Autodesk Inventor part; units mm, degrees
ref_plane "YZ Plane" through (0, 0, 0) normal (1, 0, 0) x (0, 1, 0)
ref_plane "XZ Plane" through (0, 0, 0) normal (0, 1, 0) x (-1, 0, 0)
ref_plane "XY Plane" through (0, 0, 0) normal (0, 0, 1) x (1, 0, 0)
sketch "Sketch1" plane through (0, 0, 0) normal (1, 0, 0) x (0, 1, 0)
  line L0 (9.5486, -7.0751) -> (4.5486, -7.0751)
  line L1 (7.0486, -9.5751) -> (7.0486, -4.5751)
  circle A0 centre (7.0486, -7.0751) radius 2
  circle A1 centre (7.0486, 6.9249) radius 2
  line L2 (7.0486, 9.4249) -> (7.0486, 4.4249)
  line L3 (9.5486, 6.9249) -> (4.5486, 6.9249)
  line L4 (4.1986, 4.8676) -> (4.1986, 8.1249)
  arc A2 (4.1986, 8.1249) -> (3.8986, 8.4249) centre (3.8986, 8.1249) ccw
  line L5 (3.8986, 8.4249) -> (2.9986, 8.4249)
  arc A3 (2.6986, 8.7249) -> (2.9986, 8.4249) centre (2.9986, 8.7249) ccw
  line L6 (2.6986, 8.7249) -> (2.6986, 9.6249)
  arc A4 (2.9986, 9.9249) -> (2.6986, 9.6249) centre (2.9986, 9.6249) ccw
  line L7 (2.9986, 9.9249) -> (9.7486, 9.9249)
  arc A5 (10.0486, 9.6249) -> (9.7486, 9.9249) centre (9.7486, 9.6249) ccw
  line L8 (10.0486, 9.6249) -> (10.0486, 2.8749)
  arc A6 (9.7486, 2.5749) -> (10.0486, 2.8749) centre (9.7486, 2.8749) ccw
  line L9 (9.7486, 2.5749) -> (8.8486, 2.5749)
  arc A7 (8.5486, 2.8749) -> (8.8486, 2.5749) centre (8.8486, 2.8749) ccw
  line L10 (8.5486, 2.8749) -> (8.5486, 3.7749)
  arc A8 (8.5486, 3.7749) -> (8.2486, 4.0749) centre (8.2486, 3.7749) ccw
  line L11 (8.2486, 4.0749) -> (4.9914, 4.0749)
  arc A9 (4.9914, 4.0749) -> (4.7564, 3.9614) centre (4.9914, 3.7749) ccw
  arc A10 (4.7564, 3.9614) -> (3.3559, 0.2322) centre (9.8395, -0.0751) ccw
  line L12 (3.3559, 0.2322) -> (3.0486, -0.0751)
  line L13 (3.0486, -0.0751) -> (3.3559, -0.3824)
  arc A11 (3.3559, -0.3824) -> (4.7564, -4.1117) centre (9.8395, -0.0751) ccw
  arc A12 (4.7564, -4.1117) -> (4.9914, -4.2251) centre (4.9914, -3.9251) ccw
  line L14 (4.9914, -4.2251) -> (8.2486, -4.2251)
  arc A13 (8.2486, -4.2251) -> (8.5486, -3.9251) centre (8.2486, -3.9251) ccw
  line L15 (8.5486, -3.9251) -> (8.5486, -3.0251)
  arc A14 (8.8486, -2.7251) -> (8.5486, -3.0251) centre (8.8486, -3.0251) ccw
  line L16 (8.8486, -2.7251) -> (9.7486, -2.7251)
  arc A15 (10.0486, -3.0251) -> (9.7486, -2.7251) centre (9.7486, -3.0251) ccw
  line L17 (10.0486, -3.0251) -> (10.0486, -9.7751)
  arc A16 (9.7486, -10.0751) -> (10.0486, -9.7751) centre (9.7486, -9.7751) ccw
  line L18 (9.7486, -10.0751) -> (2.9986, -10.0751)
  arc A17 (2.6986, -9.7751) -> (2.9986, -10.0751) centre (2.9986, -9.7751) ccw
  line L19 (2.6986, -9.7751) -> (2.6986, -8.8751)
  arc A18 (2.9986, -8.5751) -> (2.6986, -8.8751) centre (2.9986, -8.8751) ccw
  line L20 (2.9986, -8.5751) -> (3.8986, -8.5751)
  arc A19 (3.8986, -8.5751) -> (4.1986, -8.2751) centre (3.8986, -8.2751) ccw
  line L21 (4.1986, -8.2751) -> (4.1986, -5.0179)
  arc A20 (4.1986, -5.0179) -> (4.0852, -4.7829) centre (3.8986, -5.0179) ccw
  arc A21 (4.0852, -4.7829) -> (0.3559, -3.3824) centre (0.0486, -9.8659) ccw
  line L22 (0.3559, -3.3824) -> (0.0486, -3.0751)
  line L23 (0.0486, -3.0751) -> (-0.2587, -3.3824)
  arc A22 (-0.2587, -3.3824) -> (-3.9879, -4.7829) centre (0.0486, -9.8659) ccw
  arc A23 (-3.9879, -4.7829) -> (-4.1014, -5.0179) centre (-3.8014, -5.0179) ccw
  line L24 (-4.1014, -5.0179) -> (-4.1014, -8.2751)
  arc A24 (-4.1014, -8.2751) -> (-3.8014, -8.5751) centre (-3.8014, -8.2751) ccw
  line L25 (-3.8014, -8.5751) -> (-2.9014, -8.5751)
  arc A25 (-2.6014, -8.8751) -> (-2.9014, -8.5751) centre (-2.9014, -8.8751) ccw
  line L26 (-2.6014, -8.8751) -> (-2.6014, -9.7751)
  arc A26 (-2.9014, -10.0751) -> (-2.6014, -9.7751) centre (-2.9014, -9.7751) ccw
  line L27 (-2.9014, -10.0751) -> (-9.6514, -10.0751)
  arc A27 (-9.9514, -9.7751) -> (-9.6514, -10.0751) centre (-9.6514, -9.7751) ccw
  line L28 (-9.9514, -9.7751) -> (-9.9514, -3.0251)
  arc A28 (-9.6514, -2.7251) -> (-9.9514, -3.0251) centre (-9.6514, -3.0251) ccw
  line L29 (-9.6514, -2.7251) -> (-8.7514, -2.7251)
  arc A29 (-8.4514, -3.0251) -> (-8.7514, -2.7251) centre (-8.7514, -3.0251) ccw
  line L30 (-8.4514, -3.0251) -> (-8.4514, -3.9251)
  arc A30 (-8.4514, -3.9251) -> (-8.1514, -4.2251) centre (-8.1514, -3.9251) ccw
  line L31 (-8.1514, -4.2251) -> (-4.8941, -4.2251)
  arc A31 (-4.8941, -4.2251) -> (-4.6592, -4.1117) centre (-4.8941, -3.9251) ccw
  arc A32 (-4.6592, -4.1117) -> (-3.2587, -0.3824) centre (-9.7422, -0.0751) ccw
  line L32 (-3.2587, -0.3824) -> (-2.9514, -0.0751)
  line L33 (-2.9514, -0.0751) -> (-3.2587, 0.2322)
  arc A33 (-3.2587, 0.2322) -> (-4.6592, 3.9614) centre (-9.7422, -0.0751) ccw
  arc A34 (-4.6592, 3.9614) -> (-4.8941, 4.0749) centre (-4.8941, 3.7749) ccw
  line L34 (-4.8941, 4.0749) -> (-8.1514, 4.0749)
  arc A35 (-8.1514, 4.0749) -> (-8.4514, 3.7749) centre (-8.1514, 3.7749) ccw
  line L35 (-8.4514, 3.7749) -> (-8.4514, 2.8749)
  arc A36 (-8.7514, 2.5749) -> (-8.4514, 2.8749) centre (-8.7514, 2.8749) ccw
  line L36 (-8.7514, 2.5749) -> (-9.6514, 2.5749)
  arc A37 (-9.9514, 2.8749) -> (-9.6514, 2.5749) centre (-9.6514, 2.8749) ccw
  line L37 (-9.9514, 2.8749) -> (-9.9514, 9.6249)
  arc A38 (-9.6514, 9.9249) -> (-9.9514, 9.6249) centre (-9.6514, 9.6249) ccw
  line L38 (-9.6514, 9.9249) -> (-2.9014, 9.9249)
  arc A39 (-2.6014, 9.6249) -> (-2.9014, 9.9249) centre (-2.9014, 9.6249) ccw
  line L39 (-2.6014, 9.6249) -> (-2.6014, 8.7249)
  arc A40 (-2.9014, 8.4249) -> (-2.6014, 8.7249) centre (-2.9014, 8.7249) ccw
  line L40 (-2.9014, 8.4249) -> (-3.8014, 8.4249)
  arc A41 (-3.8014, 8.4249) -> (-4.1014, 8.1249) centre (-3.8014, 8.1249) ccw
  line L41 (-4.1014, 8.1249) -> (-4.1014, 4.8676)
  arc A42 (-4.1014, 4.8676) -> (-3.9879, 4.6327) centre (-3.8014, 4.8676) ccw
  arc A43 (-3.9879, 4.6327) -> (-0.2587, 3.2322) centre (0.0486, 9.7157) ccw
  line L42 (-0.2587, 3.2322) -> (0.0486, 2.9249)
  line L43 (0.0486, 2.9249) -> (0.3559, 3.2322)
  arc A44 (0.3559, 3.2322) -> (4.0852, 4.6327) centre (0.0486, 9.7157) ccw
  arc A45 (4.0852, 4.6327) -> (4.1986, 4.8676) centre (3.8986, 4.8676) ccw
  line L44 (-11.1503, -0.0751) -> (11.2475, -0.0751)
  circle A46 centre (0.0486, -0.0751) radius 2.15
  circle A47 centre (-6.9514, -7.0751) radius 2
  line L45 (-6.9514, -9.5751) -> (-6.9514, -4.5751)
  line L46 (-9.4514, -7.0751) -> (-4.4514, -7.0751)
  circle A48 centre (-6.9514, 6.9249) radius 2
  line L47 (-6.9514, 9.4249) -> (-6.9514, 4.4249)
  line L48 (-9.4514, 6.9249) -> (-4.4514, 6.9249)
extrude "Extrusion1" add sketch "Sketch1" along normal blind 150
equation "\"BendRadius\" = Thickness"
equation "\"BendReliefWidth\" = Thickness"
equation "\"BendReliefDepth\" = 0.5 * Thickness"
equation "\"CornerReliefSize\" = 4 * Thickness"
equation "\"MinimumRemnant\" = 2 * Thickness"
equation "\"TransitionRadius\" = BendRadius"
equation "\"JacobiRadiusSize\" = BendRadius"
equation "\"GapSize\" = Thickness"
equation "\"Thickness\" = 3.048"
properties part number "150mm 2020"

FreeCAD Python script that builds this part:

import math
import FreeCAD as App
import Part
import Sketcher
Q = App.Units.Quantity

doc = App.newDocument("Part")
body = doc.addObject("PartDesign::Body", "Body")

sketch1 = body.newObject("Sketcher::SketchObject", "Sketch")
sketch1.AttachmentSupport = (doc.getObject("YZ_Plane"), [""])
sketch1.MapMode = "FlatFace"
sketch1.addGeometry(Part.LineSegment(App.Vector(4.2, 8.12, 0), App.Vector(4.2, 4.87, 0)), False)
sketch1.addGeometry(Part.ArcOfCircle(Part.Circle(App.Vector(3.9, 4.87, 0), App.Vector(0, 0, 1), 0.3), math.radians(-52), math.radians(0)), False)
sketch1.addGeometry(Part.ArcOfCircle(Part.Circle(App.Vector(0.05, 9.72, 0), App.Vector(0, 0, 1), 6.49), math.radians(-87), math.radians(-52)), False)
sketch1.addGeometry(Part.LineSegment(App.Vector(0.36, 3.23, 0), App.Vector(0.05, 2.92, 0)), False)
sketch1.addGeometry(Part.LineSegment(App.Vector(0.05, 2.92, 0), App.Vector(-0.26, 3.23, 0)), False)
sketch1.addGeometry(Part.ArcOfCircle(Part.Circle(App.Vector(0.05, 9.72, 0), App.Vector(0, 0, 1), 6.49), math.radians(-128), math.radians(-93)), False)
sketch1.addGeometry(Part.ArcOfCircle(Part.Circle(App.Vector(-3.8, 4.87, 0), App.Vector(0, 0, 1), 0.3), math.radians(180), math.radians(232)), False)
sketch1.addGeometry(Part.LineSegment(App.Vector(-4.1, 4.87, 0), App.Vector(-4.1, 8.12, 0)), False)
sketch1.addGeometry(Part.ArcOfCircle(Part.Circle(App.Vector(-3.8, 8.12, 0), App.Vector(0, 0, 1), 0.3), math.radians(90), math.radians(180)), False)
sketch1.addGeometry(Part.LineSegment(App.Vector(-3.8, 8.42, 0), App.Vector(-2.9, 8.42, 0)), False)
sketch1.addGeometry(Part.ArcOfCircle(Part.Circle(App.Vector(-2.9, 8.72, 0), App.Vector(0, 0, 1), 0.3), math.radians(-90), math.radians(0)), False)
sketch1.addGeometry(Part.LineSegment(App.Vector(-2.6, 8.72, 0), App.Vector(-2.6, 9.62, 0)), False)
sketch1.addGeometry(Part.ArcOfCircle(Part.Circle(App.Vector(-2.9, 9.62, 0), App.Vector(0, 0, 1), 0.3), math.radians(0), math.radians(90)), False)
sketch1.addGeometry(Part.LineSegment(App.Vector(-2.9, 9.92, 0), App.Vector(-9.65, 9.92, 0)), False)
sketch1.addGeometry(Part.ArcOfCircle(Part.Circle(App.Vector(-9.65, 9.62, 0), App.Vector(0, 0, 1), 0.3), math.radians(90), math.radians(180)), False)
sketch1.addGeometry(Part.LineSegment(App.Vector(-9.95, 9.62, 0), App.Vector(-9.95, 2.87, 0)), False)
sketch1.addGeometry(Part.ArcOfCircle(Part.Circle(App.Vector(-9.65, 2.87, 0), App.Vector(0, 0, 1), 0.3), math.radians(180), math.radians(270)), False)
sketch1.addGeometry(Part.LineSegment(App.Vector(-9.65, 2.57, 0), App.Vector(-8.75, 2.57, 0)), False)
sketch1.addGeometry(Part.ArcOfCircle(Part.Circle(App.Vector(-8.75, 2.87, 0), App.Vector(0, 0, 1), 0.3), math.radians(-90), math.radians(0)), False)
sketch1.addGeometry(Part.LineSegment(App.Vector(-8.45, 2.87, 0), App.Vector(-8.45, 3.77, 0)), False)
sketch1.addGeometry(Part.ArcOfCircle(Part.Circle(App.Vector(-8.15, 3.77, 0), App.Vector(0, 0, 1), 0.3), math.radians(90), math.radians(180)), False)
sketch1.addGeometry(Part.LineSegment(App.Vector(-8.15, 4.07, 0), App.Vector(-4.89, 4.07, 0)), False)
sketch1.addGeometry(Part.ArcOfCircle(Part.Circle(App.Vector(-4.89, 3.77, 0), App.Vector(0, 0, 1), 0.3), math.radians(38), math.radians(90)), False)
sketch1.addGeometry(Part.ArcOfCircle(Part.Circle(App.Vector(-9.74, -0.08, 0), App.Vector(0, 0, 1), 6.49), math.radians(3), math.radians(38)), False)
sketch1.addGeometry(Part.LineSegment(App.Vector(-3.26, 0.23, 0), App.Vector(-2.95, -0.08, 0)), False)
sketch1.addGeometry(Part.LineSegment(App.Vector(-2.95, -0.08, 0), App.Vector(-3.26, -0.38, 0)), False)
sketch1.addGeometry(Part.ArcOfCircle(Part.Circle(App.Vector(-9.74, -0.08, 0), App.Vector(0, 0, 1), 6.49), math.radians(-38), math.radians(-3)), False)
sketch1.addGeometry(Part.ArcOfCircle(Part.Circle(App.Vector(-4.89, -3.93, 0), App.Vector(0, 0, 1), 0.3), math.radians(-90), math.radians(-38)), False)
sketch1.addGeometry(Part.LineSegment(App.Vector(-4.89, -4.23, 0), App.Vector(-8.15, -4.23, 0)), False)
sketch1.addGeometry(Part.ArcOfCircle(Part.Circle(App.Vector(-8.15, -3.93, 0), App.Vector(0, 0, 1), 0.3), math.radians(180), math.radians(270)), False)
sketch1.addGeometry(Part.LineSegment(App.Vector(-8.45, -3.93, 0), App.Vector(-8.45, -3.03, 0)), False)
sketch1.addGeometry(Part.ArcOfCircle(Part.Circle(App.Vector(-8.75, -3.03, 0), App.Vector(0, 0, 1), 0.3), math.radians(0), math.radians(90)), False)
sketch1.addGeometry(Part.LineSegment(App.Vector(-8.75, -2.73, 0), App.Vector(-9.65, -2.73, 0)), False)
sketch1.addGeometry(Part.ArcOfCircle(Part.Circle(App.Vector(-9.65, -3.03, 0), App.Vector(0, 0, 1), 0.3), math.radians(90), math.radians(180)), False)
sketch1.addGeometry(Part.LineSegment(App.Vector(-9.95, -3.03, 0), App.Vector(-9.95, -9.78, 0)), False)
sketch1.addGeometry(Part.ArcOfCircle(Part.Circle(App.Vector(-9.65, -9.78, 0), App.Vector(0, 0, 1), 0.3), math.radians(180), math.radians(270)), False)
sketch1.addGeometry(Part.LineSegment(App.Vector(-9.65, -10.08, 0), App.Vector(-2.9, -10.08, 0)), False)
sketch1.addGeometry(Part.ArcOfCircle(Part.Circle(App.Vector(-2.9, -9.78, 0), App.Vector(0, 0, 1), 0.3), math.radians(-90), math.radians(0)), False)
sketch1.addGeometry(Part.LineSegment(App.Vector(-2.6, -9.78, 0), App.Vector(-2.6, -8.88, 0)), False)
sketch1.addGeometry(Part.ArcOfCircle(Part.Circle(App.Vector(-2.9, -8.88, 0), App.Vector(0, 0, 1), 0.3), math.radians(0), math.radians(90)), False)
sketch1.addGeometry(Part.LineSegment(App.Vector(-2.9, -8.58, 0), App.Vector(-3.8, -8.58, 0)), False)
sketch1.addGeometry(Part.ArcOfCircle(Part.Circle(App.Vector(-3.8, -8.28, 0), App.Vector(0, 0, 1), 0.3), math.radians(180), math.radians(270)), False)
sketch1.addGeometry(Part.LineSegment(App.Vector(-4.1, -8.28, 0), App.Vector(-4.1, -5.02, 0)), False)
sketch1.addGeometry(Part.ArcOfCircle(Part.Circle(App.Vector(-3.8, -5.02, 0), App.Vector(0, 0, 1), 0.3), math.radians(128), math.radians(180)), False)
sketch1.addGeometry(Part.ArcOfCircle(Part.Circle(App.Vector(0.05, -9.87, 0), App.Vector(0, 0, 1), 6.49), math.radians(93), math.radians(128)), False)
sketch1.addGeometry(Part.LineSegment(App.Vector(-0.26, -3.38, 0), App.Vector(0.05, -3.08, 0)), False)
sketch1.addGeometry(Part.LineSegment(App.Vector(0.05, -3.08, 0), App.Vector(0.36, -3.38, 0)), False)
sketch1.addGeometry(Part.ArcOfCircle(Part.Circle(App.Vector(0.05, -9.87, 0), App.Vector(0, 0, 1), 6.49), math.radians(52), math.radians(87)), False)
sketch1.addGeometry(Part.ArcOfCircle(Part.Circle(App.Vector(3.9, -5.02, 0), App.Vector(0, 0, 1), 0.3), math.radians(0), math.radians(52)), False)
sketch1.addGeometry(Part.LineSegment(App.Vector(4.2, -5.02, 0), App.Vector(4.2, -8.28, 0)), False)
sketch1.addGeometry(Part.ArcOfCircle(Part.Circle(App.Vector(3.9, -8.28, 0), App.Vector(0, 0, 1), 0.3), math.radians(-90), math.radians(0)), False)
sketch1.addGeometry(Part.LineSegment(App.Vector(3.9, -8.58, 0), App.Vector(3, -8.58, 0)), False)
sketch1.addGeometry(Part.ArcOfCircle(Part.Circle(App.Vector(3, -8.88, 0), App.Vector(0, 0, 1), 0.3), math.radians(90), math.radians(180)), False)
sketch1.addGeometry(Part.LineSegment(App.Vector(2.7, -8.88, 0), App.Vector(2.7, -9.78, 0)), False)
sketch1.addGeometry(Part.ArcOfCircle(Part.Circle(App.Vector(3, -9.78, 0), App.Vector(0, 0, 1), 0.3), math.radians(180), math.radians(270)), False)
sketch1.addGeometry(Part.LineSegment(App.Vector(3, -10.08, 0), App.Vector(9.75, -10.08, 0)), False)
sketch1.addGeometry(Part.ArcOfCircle(Part.Circle(App.Vector(9.75, -9.78, 0), App.Vector(0, 0, 1), 0.3), math.radians(-90), math.radians(0)), False)
sketch1.addGeometry(Part.LineSegment(App.Vector(10.05, -9.78, 0), App.Vector(10.05, -3.03, 0)), False)
sketch1.addGeometry(Part.ArcOfCircle(Part.Circle(App.Vector(9.75, -3.03, 0), App.Vector(0, 0, 1), 0.3), math.radians(0), math.radians(90)), False)
sketch1.addGeometry(Part.LineSegment(App.Vector(9.75, -2.73, 0), App.Vector(8.85, -2.73, 0)), False)
sketch1.addGeometry(Part.ArcOfCircle(Part.Circle(App.Vector(8.85, -3.03, 0), App.Vector(0, 0, 1), 0.3), math.radians(90), math.radians(180)), False)
sketch1.addGeometry(Part.LineSegment(App.Vector(8.55, -3.03, 0), App.Vector(8.55, -3.93, 0)), False)
sketch1.addGeometry(Part.ArcOfCircle(Part.Circle(App.Vector(8.25, -3.93, 0), App.Vector(0, 0, 1), 0.3), math.radians(-90), math.radians(0)), False)
sketch1.addGeometry(Part.LineSegment(App.Vector(8.25, -4.23, 0), App.Vector(4.99, -4.23, 0)), False)
sketch1.addGeometry(Part.ArcOfCircle(Part.Circle(App.Vector(4.99, -3.93, 0), App.Vector(0, 0, 1), 0.3), math.radians(-142), math.radians(-90)), False)
sketch1.addGeometry(Part.ArcOfCircle(Part.Circle(App.Vector(9.84, -0.08, 0), App.Vector(0, 0, 1), 6.49), math.radians(-177), math.radians(-142)), False)
sketch1.addGeometry(Part.LineSegment(App.Vector(3.36, -0.38, 0), App.Vector(3.05, -0.08, 0)), False)
sketch1.addGeometry(Part.LineSegment(App.Vector(3.05, -0.08, 0), App.Vector(3.36, 0.23, 0)), False)
sketch1.addGeometry(Part.ArcOfCircle(Part.Circle(App.Vector(9.84, -0.08, 0), App.Vector(0, 0, 1), 6.49), math.radians(142), math.radians(177)), False)
sketch1.addGeometry(Part.ArcOfCircle(Part.Circle(App.Vector(4.99, 3.77, 0), App.Vector(0, 0, 1), 0.3), math.radians(90), math.radians(142)), False)
sketch1.addGeometry(Part.LineSegment(App.Vector(4.99, 4.07, 0), App.Vector(8.25, 4.07, 0)), False)
sketch1.addGeometry(Part.ArcOfCircle(Part.Circle(App.Vector(8.25, 3.77, 0), App.Vector(0, 0, 1), 0.3), math.radians(0), math.radians(90)), False)
sketch1.addGeometry(Part.LineSegment(App.Vector(8.55, 3.77, 0), App.Vector(8.55, 2.87, 0)), False)
sketch1.addGeometry(Part.ArcOfCircle(Part.Circle(App.Vector(8.85, 2.87, 0), App.Vector(0, 0, 1), 0.3), math.radians(180), math.radians(270)), False)
sketch1.addGeometry(Part.LineSegment(App.Vector(8.85, 2.57, 0), App.Vector(9.75, 2.57, 0)), False)
sketch1.addGeometry(Part.ArcOfCircle(Part.Circle(App.Vector(9.75, 2.87, 0), App.Vector(0, 0, 1), 0.3), math.radians(-90), math.radians(0)), False)
sketch1.addGeometry(Part.LineSegment(App.Vector(10.05, 2.87, 0), App.Vector(10.05, 9.62, 0)), False)
sketch1.addGeometry(Part.ArcOfCircle(Part.Circle(App.Vector(9.75, 9.62, 0), App.Vector(0, 0, 1), 0.3), math.radians(0), math.radians(90)), False)
sketch1.addGeometry(Part.LineSegment(App.Vector(9.75, 9.92, 0), App.Vector(3, 9.92, 0)), False)
sketch1.addGeometry(Part.ArcOfCircle(Part.Circle(App.Vector(3, 9.62, 0), App.Vector(0, 0, 1), 0.3), math.radians(90), math.radians(180)), False)
sketch1.addGeometry(Part.LineSegment(App.Vector(2.7, 9.62, 0), App.Vector(2.7, 8.72, 0)), False)
sketch1.addGeometry(Part.ArcOfCircle(Part.Circle(App.Vector(3, 8.72, 0), App.Vector(0, 0, 1), 0.3), math.radians(180), math.radians(270)), False)
sketch1.addGeometry(Part.LineSegment(App.Vector(3, 8.42, 0), App.Vector(3.9, 8.42, 0)), False)
sketch1.addGeometry(Part.ArcOfCircle(Part.Circle(App.Vector(3.9, 8.12, 0), App.Vector(0, 0, 1), 0.3), math.radians(0), math.radians(90)), False)
sketch1.addGeometry(Part.Circle(App.Vector(-6.95, 6.92, 0), App.Vector(0, 0, 1), 2), False)
sketch1.addGeometry(Part.Circle(App.Vector(7.05, 6.92, 0), App.Vector(0, 0, 1), 2), False)
sketch1.addGeometry(Part.Circle(App.Vector(7.05, -7.08, 0), App.Vector(0, 0, 1), 2), False)
sketch1.addGeometry(Part.Circle(App.Vector(-6.95, -7.08, 0), App.Vector(0, 0, 1), 2), False)
sketch1.addConstraint(Sketcher.Constraint("Tangent", 0, 2, 1, 2))
sketch1.addConstraint(Sketcher.Constraint("Tangent", 1, 1, 2, 2))
sketch1.addConstraint(Sketcher.Constraint("Coincident", 2, 1, 3, 1))
sketch1.addConstraint(Sketcher.Constraint("Coincident", 3, 2, 4, 1))
sketch1.addConstraint(Sketcher.Constraint("Coincident", 4, 2, 5, 2))
sketch1.addConstraint(Sketcher.Constraint("Tangent", 5, 1, 6, 2))
sketch1.addConstraint(Sketcher.Constraint("Tangent", 6, 1, 7, 1))
sketch1.addConstraint(Sketcher.Constraint("Tangent", 7, 2, 8, 2))
sketch1.addConstraint(Sketcher.Constraint("Tangent", 8, 1, 9, 1))
sketch1.addConstraint(Sketcher.Constraint("Tangent", 9, 2, 10, 1))
sketch1.addConstraint(Sketcher.Constraint("Tangent", 10, 2, 11, 1))
sketch1.addConstraint(Sketcher.Constraint("Tangent", 11, 2, 12, 1))
sketch1.addConstraint(Sketcher.Constraint("Tangent", 12, 2, 13, 1))
sketch1.addConstraint(Sketcher.Constraint("Tangent", 13, 2, 14, 1))
sketch1.addConstraint(Sketcher.Constraint("Tangent", 14, 2, 15, 1))
sketch1.addConstraint(Sketcher.Constraint("Tangent", 15, 2, 16, 1))
sketch1.addConstraint(Sketcher.Constraint("Tangent", 16, 2, 17, 1))
sketch1.addConstraint(Sketcher.Constraint("Tangent", 17, 2, 18, 1))
sketch1.addConstraint(Sketcher.Constraint("Tangent", 18, 2, 19, 1))
sketch1.addConstraint(Sketcher.Constraint("Tangent", 19, 2, 20, 2))
sketch1.addConstraint(Sketcher.Constraint("Tangent", 20, 1, 21, 1))
sketch1.addConstraint(Sketcher.Constraint("Tangent", 21, 2, 22, 2))
sketch1.addConstraint(Sketcher.Constraint("Tangent", 22, 1, 23, 2))
sketch1.addConstraint(Sketcher.Constraint("Coincident", 23, 1, 24, 1))
sketch1.addConstraint(Sketcher.Constraint("Coincident", 24, 2, 25, 1))
sketch1.addConstraint(Sketcher.Constraint("Coincident", 25, 2, 26, 2))
sketch1.addConstraint(Sketcher.Constraint("Tangent", 26, 1, 27, 2))
sketch1.addConstraint(Sketcher.Constraint("Tangent", 27, 1, 28, 1))
sketch1.addConstraint(Sketcher.Constraint("Tangent", 28, 2, 29, 2))
sketch1.addConstraint(Sketcher.Constraint("Tangent", 29, 1, 30, 1))
sketch1.addConstraint(Sketcher.Constraint("Tangent", 30, 2, 31, 1))
sketch1.addConstraint(Sketcher.Constraint("Tangent", 31, 2, 32, 1))
sketch1.addConstraint(Sketcher.Constraint("Tangent", 32, 2, 33, 1))
sketch1.addConstraint(Sketcher.Constraint("Tangent", 33, 2, 34, 1))
sketch1.addConstraint(Sketcher.Constraint("Tangent", 34, 2, 35, 1))
sketch1.addConstraint(Sketcher.Constraint("Tangent", 35, 2, 36, 1))
sketch1.addConstraint(Sketcher.Constraint("Tangent", 36, 2, 37, 1))
sketch1.addConstraint(Sketcher.Constraint("Tangent", 37, 2, 38, 1))
sketch1.addConstraint(Sketcher.Constraint("Tangent", 38, 2, 39, 1))
sketch1.addConstraint(Sketcher.Constraint("Tangent", 39, 2, 40, 1))
sketch1.addConstraint(Sketcher.Constraint("Tangent", 40, 2, 41, 2))
sketch1.addConstraint(Sketcher.Constraint("Tangent", 41, 1, 42, 1))
sketch1.addConstraint(Sketcher.Constraint("Tangent", 42, 2, 43, 2))
sketch1.addConstraint(Sketcher.Constraint("Tangent", 43, 1, 44, 2))
sketch1.addConstraint(Sketcher.Constraint("Coincident", 44, 1, 45, 1))
sketch1.addConstraint(Sketcher.Constraint("Coincident", 45, 2, 46, 1))
sketch1.addConstraint(Sketcher.Constraint("Coincident", 46, 2, 47, 2))
sketch1.addConstraint(Sketcher.Constraint("Tangent", 47, 1, 48, 2))
sketch1.addConstraint(Sketcher.Constraint("Tangent", 48, 1, 49, 1))
sketch1.addConstraint(Sketcher.Constraint("Tangent", 49, 2, 50, 2))
sketch1.addConstraint(Sketcher.Constraint("Tangent", 50, 1, 51, 1))
sketch1.addConstraint(Sketcher.Constraint("Tangent", 51, 2, 52, 1))
sketch1.addConstraint(Sketcher.Constraint("Tangent", 52, 2, 53, 1))
sketch1.addConstraint(Sketcher.Constraint("Tangent", 53, 2, 54, 1))
sketch1.addConstraint(Sketcher.Constraint("Tangent", 54, 2, 55, 1))
sketch1.addConstraint(Sketcher.Constraint("Tangent", 55, 2, 56, 1))
sketch1.addConstraint(Sketcher.Constraint("Tangent", 56, 2, 57, 1))
sketch1.addConstraint(Sketcher.Constraint("Tangent", 57, 2, 58, 1))
sketch1.addConstraint(Sketcher.Constraint("Tangent", 58, 2, 59, 1))
sketch1.addConstraint(Sketcher.Constraint("Tangent", 59, 2, 60, 1))
sketch1.addConstraint(Sketcher.Constraint("Tangent", 60, 2, 61, 1))
sketch1.addConstraint(Sketcher.Constraint("Tangent", 61, 2, 62, 2))
sketch1.addConstraint(Sketcher.Constraint("Tangent", 62, 1, 63, 1))
sketch1.addConstraint(Sketcher.Constraint("Tangent", 63, 2, 64, 2))
sketch1.addConstraint(Sketcher.Constraint("Tangent", 64, 1, 65, 2))
sketch1.addConstraint(Sketcher.Constraint("Coincident", 65, 1, 66, 1))
sketch1.addConstraint(Sketcher.Constraint("Coincident", 66, 2, 67, 1))
sketch1.addConstraint(Sketcher.Constraint("Coincident", 67, 2, 68, 2))
sketch1.addConstraint(Sketcher.Constraint("Tangent", 68, 1, 69, 2))
sketch1.addConstraint(Sketcher.Constraint("Tangent", 69, 1, 70, 1))
sketch1.addConstraint(Sketcher.Constraint("Tangent", 70, 2, 71, 2))
sketch1.addConstraint(Sketcher.Constraint("Tangent", 71, 1, 72, 1))
sketch1.addConstraint(Sketcher.Constraint("Tangent", 72, 2, 73, 1))
sketch1.addConstraint(Sketcher.Constraint("Tangent", 73, 2, 74, 1))
sketch1.addConstraint(Sketcher.Constraint("Tangent", 74, 2, 75, 1))
sketch1.addConstraint(Sketcher.Constraint("Tangent", 75, 2, 76, 1))
sketch1.addConstraint(Sketcher.Constraint("Tangent", 76, 2, 77, 1))
sketch1.addConstraint(Sketcher.Constraint("Tangent", 77, 2, 78, 1))
sketch1.addConstraint(Sketcher.Constraint("Tangent", 78, 2, 79, 1))
sketch1.addConstraint(Sketcher.Constraint("Tangent", 79, 2, 80, 1))
sketch1.addConstraint(Sketcher.Constraint("Tangent", 80, 2, 81, 1))
sketch1.addConstraint(Sketcher.Constraint("Tangent", 81, 2, 82, 1))
sketch1.addConstraint(Sketcher.Constraint("Tangent", 82, 2, 83, 2))
sketch1.addConstraint(Sketcher.Constraint("Tangent", 83, 1, 0, 1))
sketch1.addConstraint(Sketcher.Constraint("Vertical", 0))
sketch1.addConstraint(Sketcher.Constraint("Vertical", 7))
sketch1.addConstraint(Sketcher.Constraint("Horizontal", 9))
sketch1.addConstraint(Sketcher.Constraint("Vertical", 11))
sketch1.addConstraint(Sketcher.Constraint("Horizontal", 13))
sketch1.addConstraint(Sketcher.Constraint("Vertical", 15))
sketch1.addConstraint(Sketcher.Constraint("Horizontal", 17))
sketch1.addConstraint(Sketcher.Constraint("Vertical", 19))
sketch1.addConstraint(Sketcher.Constraint("Horizontal", 21))
sketch1.addConstraint(Sketcher.Constraint("Horizontal", 28))
sketch1.addConstraint(Sketcher.Constraint("Vertical", 30))
sketch1.addConstraint(Sketcher.Constraint("Horizontal", 32))
sketch1.addConstraint(Sketcher.Constraint("Vertical", 34))
sketch1.addConstraint(Sketcher.Constraint("Horizontal", 36))
sketch1.addConstraint(Sketcher.Constraint("Vertical", 38))
sketch1.addConstraint(Sketcher.Constraint("Horizontal", 40))
sketch1.addConstraint(Sketcher.Constraint("Vertical", 42))
sketch1.addConstraint(Sketcher.Constraint("Vertical", 49))
sketch1.addConstraint(Sketcher.Constraint("Horizontal", 51))
sketch1.addConstraint(Sketcher.Constraint("Vertical", 53))
sketch1.addConstraint(Sketcher.Constraint("Horizontal", 55))
sketch1.addConstraint(Sketcher.Constraint("Vertical", 57))
sketch1.addConstraint(Sketcher.Constraint("Horizontal", 59))
sketch1.addConstraint(Sketcher.Constraint("Vertical", 61))
sketch1.addConstraint(Sketcher.Constraint("Horizontal", 63))
sketch1.addConstraint(Sketcher.Constraint("Horizontal", 70))
sketch1.addConstraint(Sketcher.Constraint("Vertical", 72))
sketch1.addConstraint(Sketcher.Constraint("Horizontal", 74))
sketch1.addConstraint(Sketcher.Constraint("Vertical", 76))
sketch1.addConstraint(Sketcher.Constraint("Horizontal", 78))
sketch1.addConstraint(Sketcher.Constraint("Vertical", 80))
sketch1.addConstraint(Sketcher.Constraint("Horizontal", 82))
sketch1.addConstraint(Sketcher.Constraint("Coincident", 5, 3, 2, 3))
sketch1.addConstraint(Sketcher.Constraint("Coincident", 26, 3, 23, 3))
sketch1.addConstraint(Sketcher.Constraint("Coincident", 47, 3, 44, 3))
sketch1.addConstraint(Sketcher.Constraint("Coincident", 68, 3, 65, 3))
sketch1.addConstraint(Sketcher.Constraint("Equal", 2, 5))
sketch1.addConstraint(Sketcher.Constraint("Equal", 1, 6))
sketch1.addConstraint(Sketcher.Constraint("Equal", 6, 8))
sketch1.addConstraint(Sketcher.Constraint("Equal", 8, 10))
sketch1.addConstraint(Sketcher.Constraint("Equal", 10, 12))
sketch1.addConstraint(Sketcher.Constraint("Equal", 12, 14))
sketch1.addConstraint(Sketcher.Constraint("Equal", 14, 16))
sketch1.addConstraint(Sketcher.Constraint("Equal", 16, 18))
sketch1.addConstraint(Sketcher.Constraint("Equal", 18, 20))
sketch1.addConstraint(Sketcher.Constraint("Equal", 20, 22))
sketch1.addConstraint(Sketcher.Constraint("Equal", 5, 23))
sketch1.addConstraint(Sketcher.Constraint("Equal", 23, 26))
sketch1.addConstraint(Sketcher.Constraint("Equal", 22, 27))
sketch1.addConstraint(Sketcher.Constraint("Equal", 27, 29))
sketch1.addConstraint(Sketcher.Constraint("Equal", 29, 31))
sketch1.addConstraint(Sketcher.Constraint("Equal", 31, 33))
sketch1.addConstraint(Sketcher.Constraint("Equal", 33, 35))
sketch1.addConstraint(Sketcher.Constraint("Equal", 35, 37))
sketch1.addConstraint(Sketcher.Constraint("Equal", 37, 39))
sketch1.addConstraint(Sketcher.Constraint("Equal", 39, 41))
sketch1.addConstraint(Sketcher.Constraint("Equal", 41, 43))
sketch1.addConstraint(Sketcher.Constraint("Equal", 26, 44))
sketch1.addConstraint(Sketcher.Constraint("Equal", 44, 47))
sketch1.addConstraint(Sketcher.Constraint("Equal", 43, 48))
sketch1.addConstraint(Sketcher.Constraint("Equal", 48, 50))
sketch1.addConstraint(Sketcher.Constraint("Equal", 50, 52))
sketch1.addConstraint(Sketcher.Constraint("Equal", 52, 54))
sketch1.addConstraint(Sketcher.Constraint("Equal", 54, 56))
sketch1.addConstraint(Sketcher.Constraint("Equal", 56, 58))
sketch1.addConstraint(Sketcher.Constraint("Equal", 58, 60))
sketch1.addConstraint(Sketcher.Constraint("Equal", 60, 62))
sketch1.addConstraint(Sketcher.Constraint("Equal", 62, 64))
sketch1.addConstraint(Sketcher.Constraint("Equal", 47, 65))
sketch1.addConstraint(Sketcher.Constraint("Equal", 65, 68))
sketch1.addConstraint(Sketcher.Constraint("Equal", 64, 69))
sketch1.addConstraint(Sketcher.Constraint("Equal", 69, 71))
sketch1.addConstraint(Sketcher.Constraint("Equal", 71, 73))
sketch1.addConstraint(Sketcher.Constraint("Equal", 73, 75))
sketch1.addConstraint(Sketcher.Constraint("Equal", 75, 77))
sketch1.addConstraint(Sketcher.Constraint("Equal", 77, 79))
sketch1.addConstraint(Sketcher.Constraint("Equal", 79, 81))
sketch1.addConstraint(Sketcher.Constraint("Equal", 81, 83))
sketch1.addConstraint(Sketcher.Constraint("Equal", 84, 85))
sketch1.addConstraint(Sketcher.Constraint("Equal", 85, 86))
sketch1.addConstraint(Sketcher.Constraint("Equal", 86, 87))
sketch1.addConstraint(Sketcher.Constraint("Perpendicular", 3, 4))
sketch1.addConstraint(Sketcher.Constraint("Parallel", 4, 24))
sketch1.addConstraint(Sketcher.Constraint("Perpendicular", 24, 25))
sketch1.addConstraint(Sketcher.Constraint("Parallel", 25, 45))
sketch1.addConstraint(Sketcher.Constraint("Perpendicular", 45, 46))
sketch1.addConstraint(Sketcher.Constraint("Parallel", 46, 66))
sketch1.addConstraint(Sketcher.Constraint("Perpendicular", 66, 67))
sketch1.addConstraint(Sketcher.Constraint("Horizontal", 1, 3, 6, 3))
sketch1.addConstraint(Sketcher.Constraint("Horizontal", 43, 3, 48, 3))
sketch1.addConstraint(Sketcher.Constraint("Horizontal", 41, 3, 50, 3))
sketch1.addConstraint(Sketcher.Constraint("Horizontal", 37, 3, 54, 3))
sketch1.addConstraint(Sketcher.Constraint("Horizontal", 33, 3, 58, 3))
sketch1.addConstraint(Sketcher.Constraint("Horizontal", 29, 3, 62, 3))
sketch1.addConstraint(Sketcher.Constraint("Horizontal", 26, 3, 65, 3))
sketch1.addConstraint(Sketcher.Constraint("Horizontal", 22, 3, 69, 3))
sketch1.addConstraint(Sketcher.Constraint("Horizontal", 18, 3, 73, 3))
sketch1.addConstraint(Sketcher.Constraint("Horizontal", 14, 3, 77, 3))
sketch1.addConstraint(Sketcher.Constraint("Horizontal", 10, 3, 81, 3))
sketch1.addConstraint(Sketcher.Constraint("Horizontal", 84, 3, 85, 3))
sketch1.addConstraint(Sketcher.Constraint("Horizontal", 86, 3, 87, 3))
sketch1.addConstraint(Sketcher.Constraint("Horizontal", 2, 1, 4, 2))
sketch1.addConstraint(Sketcher.Constraint("Horizontal", 68, 3, 24, 2))
sketch1.addConstraint(Sketcher.Constraint("Horizontal", 44, 1, 46, 2))
sketch1.addConstraint(Sketcher.Constraint("Horizontal", 25, 2, 65, 1))
sketch1.addConstraint(Sketcher.Constraint("Horizontal", 24, 2, 66, 2))
sketch1.addConstraint(Sketcher.Constraint("Horizontal", 23, 1, 67, 2))
sketch1.addConstraint(Sketcher.Constraint("Vertical", 22, 3, 27, 3))
sketch1.addConstraint(Sketcher.Constraint("Vertical", 20, 3, 29, 3))
sketch1.addConstraint(Sketcher.Constraint("Vertical", 16, 3, 33, 3))
sketch1.addConstraint(Sketcher.Constraint("Vertical", 12, 3, 37, 3))
sketch1.addConstraint(Sketcher.Constraint("Vertical", 8, 3, 41, 3))
sketch1.addConstraint(Sketcher.Constraint("Vertical", 5, 3, 44, 3))
sketch1.addConstraint(Sketcher.Constraint("Vertical", 62, 3, 71, 3))
sketch1.addConstraint(Sketcher.Constraint("Vertical", 58, 3, 75, 3))
sketch1.addConstraint(Sketcher.Constraint("Vertical", 54, 3, 79, 3))
sketch1.addConstraint(Sketcher.Constraint("Vertical", 85, 3, 86, 3))
sketch1.addConstraint(Sketcher.Constraint("Vertical", 84, 3, 87, 3))
sketch1.addConstraint(Sketcher.Constraint("Vertical", 4, 2, 44, 1))
sketch1.addConstraint(Sketcher.Constraint("Equal", 9, 17))
sketch1.addConstraint(Sketcher.Constraint("Equal", 40, 51))
sketch1.addConstraint(Sketcher.Constraint("Equal", 36, 55))
sketch1.addConstraint(Sketcher.Constraint("Equal", 51, 59))
sketch1.addConstraint(Sketcher.Constraint("Equal", 28, 63))
sketch1.addConstraint(Sketcher.Constraint("Equal", 70, 0))
sketch1.addConstraint(Sketcher.Constraint("Equal", 82, 11))
sketch1.addConstraint(Sketcher.Constraint("Equal", 78, 15))
sketch1.addConstraint(Sketcher.Constraint("Equal", 11, 19))
sketch1.addConstraint(Sketcher.Constraint("Equal", 19, 30))
sketch1.addConstraint(Sketcher.Constraint("Equal", 15, 34))
sketch1.addConstraint(Sketcher.Constraint("Equal", 30, 38))
sketch1.addConstraint(Sketcher.Constraint("Equal", 7, 42))
sketch1.addConstraint(Sketcher.Constraint("Equal", 4, 24))
sketch1.addConstraint(Sketcher.Constraint("Diameter", 84, Q("4 mm")))
sketch1.addConstraint(Sketcher.Constraint("Radius", 1, Q("0.3 mm")))
sketch1.addConstraint(Sketcher.Constraint("DistanceX", 9, 1, 9, 2, Q("0.9 mm")))
sketch1.addConstraint(Sketcher.Constraint("DistanceX", 13, 2, 13, 1, Q("6.75 mm")))
sketch1.addConstraint(Sketcher.Constraint("Radius", 2, Q("6.4908 mm")))
sketch1.addConstraint(Sketcher.Constraint("DistanceX", 21, 1, 21, 2, Q("3.2573 mm")))
sketch1.addConstraint(Sketcher.Constraint("DistanceY", -1, 1, 8, 3, Q("8.125 mm")))
sketch1.addConstraint(Sketcher.Constraint("DistanceX", 22, 3, -1, 1, Q("4.894 mm")))
sketch1.addConstraint(Sketcher.Constraint("DistanceY", 23, 3, -1, 1, Q("0.075 mm")))
sketch1.addConstraint(Sketcher.Constraint("DistanceY", 44, 3, -1, 1, Q("9.866 mm")))
sketch1.addConstraint(Sketcher.Constraint("DistanceY", -1, 1, 84, 3, Q("6.925 mm")))
sketch1.addConstraint(Sketcher.Constraint("DistanceY", 86, 3, -1, 1, Q("7.075 mm")))
sketch1.addConstraint(Sketcher.Constraint("DistanceX", -1, 1, 2, 1, Q("0.356 mm")))
sketch1.addConstraint(Sketcher.Constraint("DistanceX", 84, 3, -1, 1, Q("6.9514 mm")))
sketch1.addConstraint(Sketcher.Constraint("DistanceX", -1, 1, 85, 3, Q("7.0486 mm")))
pad1 = body.newObject("PartDesign::Pad", "Pad")
pad1.Profile = sketch1
pad1.Length = 150

doc.recompute()
